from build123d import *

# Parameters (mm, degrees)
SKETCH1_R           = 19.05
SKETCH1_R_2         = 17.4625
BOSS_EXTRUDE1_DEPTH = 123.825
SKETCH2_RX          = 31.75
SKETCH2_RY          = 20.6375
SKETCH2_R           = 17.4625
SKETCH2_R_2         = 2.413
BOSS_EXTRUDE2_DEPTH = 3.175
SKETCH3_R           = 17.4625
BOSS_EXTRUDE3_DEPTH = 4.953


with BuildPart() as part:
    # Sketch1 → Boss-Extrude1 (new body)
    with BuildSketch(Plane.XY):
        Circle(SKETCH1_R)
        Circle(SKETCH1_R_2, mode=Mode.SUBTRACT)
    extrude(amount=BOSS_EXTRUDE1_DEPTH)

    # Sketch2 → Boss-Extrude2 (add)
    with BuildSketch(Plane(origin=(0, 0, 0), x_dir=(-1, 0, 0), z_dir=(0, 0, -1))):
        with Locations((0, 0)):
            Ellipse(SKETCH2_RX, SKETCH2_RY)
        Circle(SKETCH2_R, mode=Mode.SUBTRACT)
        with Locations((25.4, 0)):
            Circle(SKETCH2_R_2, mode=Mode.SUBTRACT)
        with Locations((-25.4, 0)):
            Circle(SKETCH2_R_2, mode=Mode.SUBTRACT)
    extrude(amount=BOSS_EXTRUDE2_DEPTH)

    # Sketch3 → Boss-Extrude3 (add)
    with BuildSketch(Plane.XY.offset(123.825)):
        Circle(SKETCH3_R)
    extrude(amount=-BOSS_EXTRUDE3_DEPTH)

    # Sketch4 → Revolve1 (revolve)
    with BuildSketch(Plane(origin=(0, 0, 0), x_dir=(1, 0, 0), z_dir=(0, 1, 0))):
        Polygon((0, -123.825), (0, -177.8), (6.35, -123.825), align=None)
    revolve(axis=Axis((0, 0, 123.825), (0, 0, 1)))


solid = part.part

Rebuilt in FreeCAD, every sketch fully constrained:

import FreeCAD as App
import Part
import Sketcher
from FreeCAD import Vector
Q = App.Units.Quantity


def add_polygon(sketch, points):
    """Adds a closed chain of lines whose ends are joined by coincident constraints."""
    first, n = sketch.GeometryCount, len(points)
    for a, b in zip(points, points[1:] + points[:1]):
        sketch.addGeometry(Part.LineSegment(App.Vector(*a, 0), App.Vector(*b, 0)), False)
    for i in range(n):
        sketch.addConstraint(Sketcher.Constraint("Coincident", first + i, 2, first + (i + 1) % n, 1))

doc = App.newDocument("Part")
params = doc.addObject("Spreadsheet::Sheet", "Params")
for row, (alias, value) in enumerate([
    ("sketch1_diameter", "1.5 in"),
    ("sketch1_diameter2", "1.375 in"),
    ("pad1_length", "4.875 in"),
    ("sketch2_diameter", "0.19 in"),
    ("sketch2_diameter2", "1.375 in"),
    ("pad2_length", "0.125 in"),
    ("sketch3_diameter", "1.375 in"),
    ("pad3_length", "0.195 in"),
    ("sketch4_width", "0.25 in"),
    ("sketch4_height", "2.125 in"),
    ("revolution_angle", "360 deg"),
], start=1):
    params.set(f"A{row}", alias)
    params.set(f"B{row}", "=" + value)
    params.setAlias(f"B{row}", alias)

body = doc.addObject("PartDesign::Body", "Body")

sketch1 = body.newObject("Sketcher::SketchObject", "Sketch")
sketch1.AttachmentSupport = (doc.getObject("XY_Plane"), [""])
sketch1.MapMode = "FlatFace"
sketch1.addGeometry([
    Part.Circle(Vector(0, 0, 0), Vector(0, 0, 1), 19),
    Part.Circle(Vector(0, 0, 0), Vector(0, 0, 1), 17),
], False)
sketch1.addConstraint([
    Sketcher.Constraint("Coincident", 0, 3, -1, 1),
    Sketcher.Constraint("Coincident", 1, 3, -1, 1),
    Sketcher.Constraint("Diameter", 0, Q("1.5 in")),
    Sketcher.Constraint("Diameter", 1, Q("1.375 in")),
])
sketch1.setExpression("Constraints[2]", "Params.sketch1_diameter")
sketch1.setExpression("Constraints[3]", "Params.sketch1_diameter2")
pad1 = body.newObject("PartDesign::Pad", "Pad")
pad1.Profile = sketch1
pad1.setExpression("Length", "Params.pad1_length")

sketch2 = body.newObject("Sketcher::SketchObject", "Sketch001")
sketch2.AttachmentSupport = (doc.getObject("XY_Plane"), [""])
sketch2.MapMode = "FlatFace"
sketch2.addGeometry([
    Part.Ellipse(Vector(-31.75, 0, 0), Vector(0, -20.6375, 0), Vector(0, 0, 0)),
    Part.Circle(Vector(25.4, 0, 0), Vector(0, 0, 1), 2.413),
    Part.Circle(Vector(0, 0, 0), Vector(0, 0, 1), 17.4625),
    Part.Circle(Vector(-25.4, 0, 0), Vector(0, 0, 1), 2.413),
], False)
sketch2.addConstraint([
    Sketcher.Constraint("Block", 0),
    Sketcher.Constraint("Coincident", 2, 3, -1, 1),
    Sketcher.Constraint("Equal", 1, 3),
    Sketcher.Constraint("Symmetric", 1, 3, 3, 3, -1, 1),
    Sketcher.Constraint("PointOnObject", 1, 3, -1),
    Sketcher.Constraint("Diameter", 1, Q("0.19 in")),
    Sketcher.Constraint("Diameter", 2, Q("1.375 in")),
    Sketcher.Constraint("DistanceX", -1, 1, 1, 3, Q("1 in")),
])
sketch2.setExpression("Constraints[5]", "Params.sketch2_diameter")
sketch2.setExpression("Constraints[6]", "Params.sketch2_diameter2")
pad2 = body.newObject("PartDesign::Pad", "Pad001")
pad2.Profile = sketch2
pad2.setExpression("Length", "Params.pad2_length")
pad2.Reversed = True

sketch3 = body.newObject("Sketcher::SketchObject", "Sketch002")
sketch3.AttachmentSupport = (doc.getObject("XY_Plane"), [""])
sketch3.MapMode = "FlatFace"
sketch3.AttachmentOffset = App.Placement(Vector(0, 0, 4.875 * 25.4), App.Rotation())
sketch3.addGeometry(Part.Circle(Vector(0, 0, 0), Vector(0, 0, 1), 17), False)
sketch3.addConstraint([
    Sketcher.Constraint("Coincident", 0, 3, -1, 1),
    Sketcher.Constraint("Diameter", 0, Q("1.375 in")),
])
sketch3.setExpression("Constraints[1]", "Params.sketch3_diameter")
pad3 = body.newObject("PartDesign::Pad", "Pad002")
pad3.Profile = sketch3
pad3.setExpression("Length", "Params.pad3_length")
pad3.Reversed = True

sketch4 = body.newObject("Sketcher::SketchObject", "Sketch003")
sketch4.AttachmentSupport = (doc.getObject("XZ_Plane"), [""])
sketch4.MapMode = "FlatFace"
add_polygon(sketch4, [(0, 124), (0, 178), (6, 124)])
sketch4.addConstraint([
    Sketcher.Constraint("Vertical", 0),
    Sketcher.Constraint("Horizontal", 2),
    Sketcher.Constraint("PointOnObject", 0, 2, -2),
    Sketcher.Constraint("DistanceY", -1, 1, 0, 2, Q("7 in")),
    Sketcher.Constraint("DistanceX", 2, 2, 2, 1, Q("0.25 in")),
    Sketcher.Constraint("DistanceY", 0, 1, 0, 2, Q("2.125 in")),
])
sketch4.setExpression("Constraints[7]", "Params.sketch4_width")
sketch4.setExpression("Constraints[8]", "Params.sketch4_height")
revolution = body.newObject("PartDesign::Revolution", "Revolution")
revolution.Profile = sketch4
revolution.ReferenceAxis = (sketch4, ["V_Axis"])
revolution.setExpression("Angle", "Params.revolution_angle")

doc.recompute()
